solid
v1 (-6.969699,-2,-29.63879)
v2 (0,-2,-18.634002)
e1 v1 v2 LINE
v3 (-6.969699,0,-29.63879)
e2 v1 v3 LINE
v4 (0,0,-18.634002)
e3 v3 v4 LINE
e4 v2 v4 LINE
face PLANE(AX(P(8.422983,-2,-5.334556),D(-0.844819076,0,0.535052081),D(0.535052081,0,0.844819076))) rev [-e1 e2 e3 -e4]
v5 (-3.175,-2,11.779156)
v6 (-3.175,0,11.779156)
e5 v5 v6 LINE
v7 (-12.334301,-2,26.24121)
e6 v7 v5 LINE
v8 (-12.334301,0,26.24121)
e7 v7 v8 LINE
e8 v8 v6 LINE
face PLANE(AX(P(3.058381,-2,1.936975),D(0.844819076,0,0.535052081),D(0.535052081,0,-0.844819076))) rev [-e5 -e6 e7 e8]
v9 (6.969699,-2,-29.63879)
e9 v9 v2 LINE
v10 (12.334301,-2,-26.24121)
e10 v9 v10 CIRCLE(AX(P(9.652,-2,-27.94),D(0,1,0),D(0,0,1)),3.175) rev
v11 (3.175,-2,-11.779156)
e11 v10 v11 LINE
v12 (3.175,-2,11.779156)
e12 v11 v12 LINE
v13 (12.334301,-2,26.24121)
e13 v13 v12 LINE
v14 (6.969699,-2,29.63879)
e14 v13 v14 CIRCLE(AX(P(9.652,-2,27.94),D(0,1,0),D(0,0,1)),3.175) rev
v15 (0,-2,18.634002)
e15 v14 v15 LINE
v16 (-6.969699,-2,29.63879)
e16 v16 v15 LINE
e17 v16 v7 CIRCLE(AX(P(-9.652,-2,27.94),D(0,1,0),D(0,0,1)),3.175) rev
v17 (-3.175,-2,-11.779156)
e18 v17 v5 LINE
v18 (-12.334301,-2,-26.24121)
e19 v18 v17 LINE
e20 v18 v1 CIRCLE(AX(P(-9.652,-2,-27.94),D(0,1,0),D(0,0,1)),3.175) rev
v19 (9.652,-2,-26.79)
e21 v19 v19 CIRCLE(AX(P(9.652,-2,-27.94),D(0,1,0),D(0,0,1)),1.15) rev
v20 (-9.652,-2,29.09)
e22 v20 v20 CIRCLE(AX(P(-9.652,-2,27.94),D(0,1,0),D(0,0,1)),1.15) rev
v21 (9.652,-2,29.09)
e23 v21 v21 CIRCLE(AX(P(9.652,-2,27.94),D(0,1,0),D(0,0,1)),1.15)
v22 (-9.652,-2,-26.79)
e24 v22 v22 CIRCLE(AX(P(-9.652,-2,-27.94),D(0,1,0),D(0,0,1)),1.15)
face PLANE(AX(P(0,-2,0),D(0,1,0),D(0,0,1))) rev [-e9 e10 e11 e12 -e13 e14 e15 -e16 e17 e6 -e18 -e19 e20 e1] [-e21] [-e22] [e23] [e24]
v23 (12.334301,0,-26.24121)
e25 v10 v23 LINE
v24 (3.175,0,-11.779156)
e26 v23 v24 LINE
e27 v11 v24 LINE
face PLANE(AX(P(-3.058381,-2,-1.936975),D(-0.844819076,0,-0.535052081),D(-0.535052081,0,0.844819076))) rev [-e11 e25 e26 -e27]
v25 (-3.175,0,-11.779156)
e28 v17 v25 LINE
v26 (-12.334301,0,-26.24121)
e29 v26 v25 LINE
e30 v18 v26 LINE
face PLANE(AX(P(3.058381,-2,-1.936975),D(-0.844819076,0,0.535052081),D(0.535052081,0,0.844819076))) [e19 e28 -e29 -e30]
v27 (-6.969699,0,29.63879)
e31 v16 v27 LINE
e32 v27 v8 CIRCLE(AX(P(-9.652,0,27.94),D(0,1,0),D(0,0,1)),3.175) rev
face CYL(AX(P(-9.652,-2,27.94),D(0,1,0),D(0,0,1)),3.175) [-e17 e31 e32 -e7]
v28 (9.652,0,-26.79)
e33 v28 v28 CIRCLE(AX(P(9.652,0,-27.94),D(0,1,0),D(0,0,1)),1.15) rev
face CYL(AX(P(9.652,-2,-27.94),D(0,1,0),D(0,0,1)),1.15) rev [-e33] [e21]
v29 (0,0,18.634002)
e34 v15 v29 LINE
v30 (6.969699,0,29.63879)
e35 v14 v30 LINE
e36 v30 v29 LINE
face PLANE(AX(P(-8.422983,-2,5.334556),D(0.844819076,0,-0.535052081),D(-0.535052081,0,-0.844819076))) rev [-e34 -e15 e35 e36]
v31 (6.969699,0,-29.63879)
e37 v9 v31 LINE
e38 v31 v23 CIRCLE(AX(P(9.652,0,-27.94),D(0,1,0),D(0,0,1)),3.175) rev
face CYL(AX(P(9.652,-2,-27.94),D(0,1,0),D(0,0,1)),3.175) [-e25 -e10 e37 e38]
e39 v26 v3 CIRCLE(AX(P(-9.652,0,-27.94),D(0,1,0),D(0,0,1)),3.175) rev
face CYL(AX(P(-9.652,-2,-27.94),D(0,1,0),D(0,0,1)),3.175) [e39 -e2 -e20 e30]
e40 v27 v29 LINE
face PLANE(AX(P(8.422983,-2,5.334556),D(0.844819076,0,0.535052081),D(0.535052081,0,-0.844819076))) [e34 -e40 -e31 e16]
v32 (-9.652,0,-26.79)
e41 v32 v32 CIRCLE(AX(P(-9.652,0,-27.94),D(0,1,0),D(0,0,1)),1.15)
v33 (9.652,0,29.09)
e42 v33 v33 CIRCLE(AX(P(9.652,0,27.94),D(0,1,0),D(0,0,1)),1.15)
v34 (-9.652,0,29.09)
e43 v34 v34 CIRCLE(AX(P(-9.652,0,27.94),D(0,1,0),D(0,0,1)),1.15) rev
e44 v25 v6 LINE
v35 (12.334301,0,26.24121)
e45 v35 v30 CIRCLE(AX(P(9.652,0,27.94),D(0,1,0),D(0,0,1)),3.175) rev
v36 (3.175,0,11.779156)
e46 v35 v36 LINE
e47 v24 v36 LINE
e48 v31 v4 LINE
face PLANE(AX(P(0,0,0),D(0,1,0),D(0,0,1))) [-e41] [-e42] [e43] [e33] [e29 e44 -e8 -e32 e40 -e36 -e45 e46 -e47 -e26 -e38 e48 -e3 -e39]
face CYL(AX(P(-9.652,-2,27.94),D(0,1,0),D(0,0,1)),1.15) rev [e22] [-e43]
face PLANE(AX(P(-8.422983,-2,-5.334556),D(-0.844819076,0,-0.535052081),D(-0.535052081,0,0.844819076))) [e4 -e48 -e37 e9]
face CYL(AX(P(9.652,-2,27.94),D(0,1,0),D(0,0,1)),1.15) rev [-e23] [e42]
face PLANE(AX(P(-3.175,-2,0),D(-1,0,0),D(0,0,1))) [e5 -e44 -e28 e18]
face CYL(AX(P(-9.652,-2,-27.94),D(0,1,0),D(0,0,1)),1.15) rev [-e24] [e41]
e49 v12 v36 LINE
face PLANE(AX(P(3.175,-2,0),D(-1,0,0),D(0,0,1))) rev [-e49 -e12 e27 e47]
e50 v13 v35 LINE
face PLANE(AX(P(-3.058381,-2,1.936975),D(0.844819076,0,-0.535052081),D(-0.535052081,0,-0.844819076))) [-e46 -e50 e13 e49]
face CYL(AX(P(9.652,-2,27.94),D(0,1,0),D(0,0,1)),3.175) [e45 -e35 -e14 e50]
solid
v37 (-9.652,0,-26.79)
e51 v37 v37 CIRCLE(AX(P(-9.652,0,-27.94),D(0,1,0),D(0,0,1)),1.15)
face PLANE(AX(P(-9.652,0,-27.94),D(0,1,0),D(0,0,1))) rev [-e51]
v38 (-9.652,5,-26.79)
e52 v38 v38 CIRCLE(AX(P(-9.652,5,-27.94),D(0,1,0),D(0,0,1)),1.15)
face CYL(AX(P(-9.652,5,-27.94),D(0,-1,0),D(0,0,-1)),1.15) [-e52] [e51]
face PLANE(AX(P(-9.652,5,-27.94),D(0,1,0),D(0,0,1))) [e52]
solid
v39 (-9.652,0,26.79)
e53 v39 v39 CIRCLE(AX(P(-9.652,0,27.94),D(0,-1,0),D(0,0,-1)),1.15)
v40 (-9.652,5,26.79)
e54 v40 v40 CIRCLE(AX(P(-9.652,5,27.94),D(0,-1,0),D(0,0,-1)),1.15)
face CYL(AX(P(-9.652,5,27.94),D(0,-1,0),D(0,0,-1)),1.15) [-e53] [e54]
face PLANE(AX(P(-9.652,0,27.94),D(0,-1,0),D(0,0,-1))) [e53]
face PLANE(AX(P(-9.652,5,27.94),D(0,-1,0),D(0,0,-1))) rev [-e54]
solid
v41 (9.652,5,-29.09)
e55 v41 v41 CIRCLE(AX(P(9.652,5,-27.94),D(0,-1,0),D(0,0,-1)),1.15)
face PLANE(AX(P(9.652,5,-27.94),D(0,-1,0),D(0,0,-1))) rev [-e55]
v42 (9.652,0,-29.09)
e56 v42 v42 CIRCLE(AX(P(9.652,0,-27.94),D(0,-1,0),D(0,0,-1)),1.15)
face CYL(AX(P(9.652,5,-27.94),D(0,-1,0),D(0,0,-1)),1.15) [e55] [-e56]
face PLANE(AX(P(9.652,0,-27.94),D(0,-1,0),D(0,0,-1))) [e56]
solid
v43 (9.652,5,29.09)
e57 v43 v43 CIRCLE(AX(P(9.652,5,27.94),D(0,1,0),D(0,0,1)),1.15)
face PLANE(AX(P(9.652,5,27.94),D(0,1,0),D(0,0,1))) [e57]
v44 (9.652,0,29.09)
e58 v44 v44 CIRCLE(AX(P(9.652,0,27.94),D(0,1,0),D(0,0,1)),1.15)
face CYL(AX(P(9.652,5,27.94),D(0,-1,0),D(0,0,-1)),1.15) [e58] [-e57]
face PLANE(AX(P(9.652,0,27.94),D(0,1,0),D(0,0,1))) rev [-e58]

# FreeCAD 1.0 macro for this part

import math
import FreeCAD as App
import Part
import Sketcher
from FreeCAD import Vector
Q = App.Units.Quantity

doc = App.newDocument("Part")
params = doc.addObject("Spreadsheet::Sheet", "Params")
for row, (alias, value) in enumerate([
    ("sketch1_diameter", "2.3 mm"),
    ("pad1_length", "5 mm"),
    ("sketch2_diameter", "2.3 mm"),
    ("pad2_length", "5 mm"),
    ("sketch3_diameter", "2.3 mm"),
    ("pad3_length", "5 mm"),
    ("sketch4_diameter", "2.3 mm"),
    ("pad4_length", "5 mm"),
    ("sketch5_diameter", "2.3 mm"),
    ("pad5_length", "2 mm"),
], start=1):
    params.set(f"A{row}", alias)
    params.set(f"B{row}", "=" + value)
    params.setAlias(f"B{row}", alias)

body = doc.addObject("PartDesign::Body", "Body")

# Sketch on XZ plane
sketch1 = body.newObject("Sketcher::SketchObject", "Sketch")
sketch1.AttachmentSupport = (doc.getObject("XZ_Plane"), [""])
sketch1.MapMode = "FlatFace"
sketch1.addGeometry(Part.Circle(Vector(-9.652, -27.94, 0), Vector(0, 0, 1), 1.15), False)
sketch1.addConstraint([
    Sketcher.Constraint("Diameter", 0, Q("2.3 mm")),
    Sketcher.Constraint("DistanceY", 0, 3, -1, 1, Q("27.94 mm")),
    Sketcher.Constraint("DistanceX", 0, 3, -1, 1, Q("9.652 mm")),
])
sketch1.setExpression("Constraints[0]", "Params.sketch1_diameter")
pad1 = body.newObject("PartDesign::Pad", "Pad")
pad1.Profile = sketch1
pad1.setExpression("Length", "Params.pad1_length")
pad1.Reversed = True
body2 = doc.addObject("PartDesign::Body", "Body001")

# Sketch on XZ plane
sketch2 = body2.newObject("Sketcher::SketchObject", "Sketch001")
sketch2.AttachmentSupport = (doc.getObject("XZ_Plane001"), [""])
sketch2.MapMode = "FlatFace"
sketch2.addGeometry(Part.Circle(Vector(9.652, -27.94, 0), Vector(0, 0, 1), 1.15), False)
sketch2.addConstraint([
    Sketcher.Constraint("Diameter", 0, Q("2.3 mm")),
    Sketcher.Constraint("DistanceY", 0, 3, -1, 1, Q("27.94 mm")),
    Sketcher.Constraint("DistanceX", -1, 1, 0, 3, Q("9.652 mm")),
])
sketch2.setExpression("Constraints[0]", "Params.sketch2_diameter")
pad2 = body2.newObject("PartDesign::Pad", "Pad001")
pad2.Profile = sketch2
pad2.setExpression("Length", "Params.pad2_length")
pad2.Reversed = True
body3 = doc.addObject("PartDesign::Body", "Body002")

# Sketch on XZ plane
sketch3 = body3.newObject("Sketcher::SketchObject", "Sketch002")
sketch3.AttachmentSupport = (doc.getObject("XZ_Plane002"), [""])
sketch3.MapMode = "FlatFace"
sketch3.addGeometry(Part.Circle(Vector(-9.652, 27.94, 0), Vector(0, 0, 1), 1.15), False)
sketch3.addConstraint([
    Sketcher.Constraint("Diameter", 0, Q("2.3 mm")),
    Sketcher.Constraint("DistanceY", -1, 1, 0, 3, Q("27.94 mm")),
    Sketcher.Constraint("DistanceX", 0, 3, -1, 1, Q("9.652 mm")),
])
sketch3.setExpression("Constraints[0]", "Params.sketch3_diameter")
pad3 = body3.newObject("PartDesign::Pad", "Pad002")
pad3.Profile = sketch3
pad3.setExpression("Length", "Params.pad3_length")
pad3.Reversed = True
body4 = doc.addObject("PartDesign::Body", "Body003")

# Sketch on XZ plane
sketch4 = body4.newObject("Sketcher::SketchObject", "Sketch003")
sketch4.AttachmentSupport = (doc.getObject("XZ_Plane003"), [""])
sketch4.MapMode = "FlatFace"
sketch4.addGeometry(Part.Circle(Vector(9.652, 27.94, 0), Vector(0, 0, 1), 1.15), False)
sketch4.addConstraint([
    Sketcher.Constraint("Diameter", 0, Q("2.3 mm")),
    Sketcher.Constraint("DistanceY", -1, 1, 0, 3, Q("27.94 mm")),
    Sketcher.Constraint("DistanceX", -1, 1, 0, 3, Q("9.652 mm")),
])
sketch4.setExpression("Constraints[0]", "Params.sketch4_diameter")
pad4 = body4.newObject("PartDesign::Pad", "Pad003")
pad4.Profile = sketch4
pad4.setExpression("Length", "Params.pad4_length")
pad4.Reversed = True
body5 = doc.addObject("PartDesign::Body", "Body004")

# Sketch on XZ plane
sketch5 = body5.newObject("Sketcher::SketchObject", "Sketch004")
sketch5.AttachmentSupport = (doc.getObject("XZ_Plane004"), [""])
sketch5.MapMode = "FlatFace"
sketch5.AttachmentOffset = App.Placement(Vector(0, 0, 2), App.Rotation())
sketch5.addGeometry([
    Part.ArcOfCircle(Part.Circle(Vector(-9.652, -27.94, 0), Vector(0, 0, 1), 3.175), math.radians(147.652556), math.radians(327.652556)),  # 0
    Part.LineSegment(Vector(-12.334301, -26.24121, 0), Vector(-3.175, -11.779156, 0)),  # 1
    Part.LineSegment(Vector(-3.175, -11.779156, 0), Vector(-3.175, 11.779156, 0)),  # 2
    Part.LineSegment(Vector(-3.175, 11.779156, 0), Vector(-12.334301, 26.24121, 0)),  # 3
    Part.ArcOfCircle(Part.Circle(Vector(-9.652, 27.94, 0), Vector(0, 0, 1), 3.175), math.radians(32.347444), math.radians(212.347444)),  # 4
    Part.LineSegment(Vector(-6.969699, 29.63879, 0), Vector(0, 18.634002, 0)),  # 5
    Part.LineSegment(Vector(0, 18.634002, 0), Vector(6.969699, 29.63879, 0)),  # 6
    Part.ArcOfCircle(Part.Circle(Vector(9.652, 27.94, 0), Vector(0, 0, 1), 3.175), math.radians(-32.347444), math.radians(147.652556)),  # 7
    Part.LineSegment(Vector(12.334301, 26.24121, 0), Vector(3.175, 11.779156, 0)),  # 8
    Part.LineSegment(Vector(3.175, 11.779156, 0), Vector(3.175, -11.779156, 0)),  # 9
    Part.LineSegment(Vector(3.175, -11.779156, 0), Vector(12.334301, -26.24121, 0)),  # 10
    Part.ArcOfCircle(Part.Circle(Vector(9.652, -27.94, 0), Vector(0, 0, 1), 3.175), math.radians(-147.652556), math.radians(32.347444)),  # 11
    Part.LineSegment(Vector(6.969699, -29.63879, 0), Vector(0, -18.634002, 0)),  # 12
    Part.LineSegment(Vector(0, -18.634002, 0), Vector(-6.969699, -29.63879, 0)),  # 13
    Part.Circle(Vector(-9.652, -27.94, 0), Vector(0, 0, 1), 1.15),  # 14
    Part.Circle(Vector(9.652, -27.94, 0), Vector(0, 0, 1), 1.15),  # 15
    Part.Circle(Vector(-9.652, 27.94, 0), Vector(0, 0, 1), 1.15),  # 16
    Part.Circle(Vector(9.652, 27.94, 0), Vector(0, 0, 1), 1.15),  # 17
], False)
sketch5.addConstraint([
    Sketcher.Constraint("Tangent", 0, 1, 1, 1),
    Sketcher.Constraint("Coincident", 1, 2, 2, 1),
    Sketcher.Constraint("Coincident", 2, 2, 3, 1),
    Sketcher.Constraint("Tangent", 3, 2, 4, 2),
    Sketcher.Constraint("Tangent", 4, 1, 5, 1),
    Sketcher.Constraint("Coincident", 5, 2, 6, 1),
    Sketcher.Constraint("Tangent", 6, 2, 7, 2),
    Sketcher.Constraint("Tangent", 7, 1, 8, 1),
    Sketcher.Constraint("Coincident", 8, 2, 9, 1),
    Sketcher.Constraint("Coincident", 9, 2, 10, 1),
    Sketcher.Constraint("Tangent", 10, 2, 11, 2),
    Sketcher.Constraint("Tangent", 11, 1, 12, 1),
    Sketcher.Constraint("Coincident", 12, 2, 13, 1),
    Sketcher.Constraint("Tangent", 13, 2, 0, 2),
    Sketcher.Constraint("Vertical", 2),
    Sketcher.Constraint("Vertical", 9),
    Sketcher.Constraint("Coincident", 14, 3, 0, 3),
    Sketcher.Constraint("Coincident", 15, 3, 11, 3),
    Sketcher.Constraint("Coincident", 16, 3, 4, 3),
    Sketcher.Constraint("Coincident", 17, 3, 7, 3),
    Sketcher.Constraint("Equal", 0, 4),
    Sketcher.Constraint("Equal", 4, 7),
    Sketcher.Constraint("Equal", 7, 11),
    Sketcher.Constraint("Equal", 14, 15),
    Sketcher.Constraint("Equal", 15, 16),
    Sketcher.Constraint("Equal", 16, 17),
    Sketcher.Constraint("Symmetric", 0, 3, 7, 3, -1, 1),
    Sketcher.Constraint("Symmetric", 4, 3, 11, 3, -1, 1),
    Sketcher.Constraint("Symmetric", 1, 2, 8, 2, -1, 1),
    Sketcher.Constraint("Symmetric", 5, 2, 12, 2, -1, 1),
    Sketcher.Constraint("Symmetric", 4, 3, 7, 3, -2),
    Sketcher.Constraint("PointOnObject", 5, 2, -2),
    Sketcher.Constraint("Parallel", 3, 5),
    Sketcher.Constraint("Parallel", 1, 6),
    Sketcher.Constraint("Parallel", 5, 10),
    Sketcher.Constraint("Diameter", 14, Q("2.3 mm")),
    Sketcher.Constraint("Radius", 0, Q("3.175 mm")),
    Sketcher.Constraint("DistanceY", 0, 3, -1, 1, Q("27.94 mm")),
    Sketcher.Constraint("DistanceX", 2, 2, 8, 2, Q("6.35 mm")),
    Sketcher.Constraint("DistanceX", 0, 3, -1, 1, Q("9.652 mm")),
    Sketcher.Constraint("DistanceY", -1, 1, 5, 2, Q("18.634002 mm")),
])
sketch5.setExpression("Constraints[35]", "Params.sketch5_diameter")
pad5 = body5.newObject("PartDesign::Pad", "Pad004")
pad5.Profile = sketch5
pad5.setExpression("Length", "Params.pad5_length")
pad5.Reversed = True

doc.recompute()
